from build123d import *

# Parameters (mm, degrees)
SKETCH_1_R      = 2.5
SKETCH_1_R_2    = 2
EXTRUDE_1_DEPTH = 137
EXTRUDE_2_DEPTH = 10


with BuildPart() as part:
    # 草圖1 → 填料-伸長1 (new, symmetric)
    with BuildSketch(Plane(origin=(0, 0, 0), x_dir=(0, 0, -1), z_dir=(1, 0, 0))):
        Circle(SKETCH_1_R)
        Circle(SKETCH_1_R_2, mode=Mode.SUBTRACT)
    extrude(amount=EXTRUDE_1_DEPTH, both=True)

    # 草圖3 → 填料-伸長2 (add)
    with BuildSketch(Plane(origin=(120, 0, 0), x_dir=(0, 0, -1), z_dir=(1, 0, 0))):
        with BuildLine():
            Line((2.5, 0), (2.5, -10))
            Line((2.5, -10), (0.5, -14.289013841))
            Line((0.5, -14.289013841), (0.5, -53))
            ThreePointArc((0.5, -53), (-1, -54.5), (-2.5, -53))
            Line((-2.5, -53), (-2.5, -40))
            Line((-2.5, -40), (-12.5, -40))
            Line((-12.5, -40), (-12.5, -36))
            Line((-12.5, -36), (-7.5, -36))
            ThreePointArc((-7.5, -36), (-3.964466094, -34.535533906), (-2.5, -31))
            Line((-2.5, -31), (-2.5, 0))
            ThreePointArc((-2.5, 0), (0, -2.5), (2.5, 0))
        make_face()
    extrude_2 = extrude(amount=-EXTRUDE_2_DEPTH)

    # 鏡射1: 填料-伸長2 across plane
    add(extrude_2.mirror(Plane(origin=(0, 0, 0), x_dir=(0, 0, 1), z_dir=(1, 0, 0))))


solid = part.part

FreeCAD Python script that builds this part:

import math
import FreeCAD as App
import Part
import Sketcher
from FreeCAD import Vector
Q = App.Units.Quantity

doc = App.newDocument("Part")
body = doc.addObject("PartDesign::Body", "Body")

sketch1 = body.newObject("Sketcher::SketchObject", "Sketch")
sketch1.AttachmentSupport = (doc.getObject("YZ_Plane"), [""])
sketch1.MapMode = "FlatFace"
sketch1.addGeometry([
    Part.Circle(Vector(0, 0, 0), Vector(0, 0, 1), 2.5),
    Part.Circle(Vector(0, 0, 0), Vector(0, 0, 1), 2),
], False)
sketch1.addConstraint([
    Sketcher.Constraint("Coincident", 0, 3, -1, 1),
    Sketcher.Constraint("Coincident", 1, 3, -1, 1),
    Sketcher.Constraint("Diameter", 0, Q("5 mm")),
    Sketcher.Constraint("Diameter", 1, Q("4 mm")),
])
pad1 = body.newObject("PartDesign::Pad", "Pad")
pad1.Profile = sketch1
pad1.Length = 274
pad1.Midplane = True

sketch2 = body.newObject("Sketcher::SketchObject", "Sketch001")
sketch2.AttachmentSupport = (doc.getObject("YZ_Plane"), [""])
sketch2.MapMode = "FlatFace"
sketch2.AttachmentOffset = App.Placement(Vector(0, 0, 120), App.Rotation())
sketch2.addGeometry([
    Part.LineSegment(Vector(-10, -2.5, 0), Vector(0, -2.5, 0)),
    Part.ArcOfCircle(Part.Circle(Vector(0, 0, 0), Vector(0, 0, 1), 2.5), math.radians(90), math.radians(270)),
    Part.LineSegment(Vector(0, 2.5, 0), Vector(-31, 2.5, 0)),
    Part.ArcOfCircle(Part.Circle(Vector(-31, 7.5, 0), Vector(0, 0, 1), 5), math.radians(180), math.radians(270)),
    Part.LineSegment(Vector(-36, 7.5, 0), Vector(-36, 12.5, 0)),
    Part.LineSegment(Vector(-36, 12.5, 0), Vector(-40, 12.5, 0)),
    Part.LineSegment(Vector(-40, 12.5, 0), Vector(-40, 2.5, 0)),
    Part.LineSegment(Vector(-40, 2.5, 0), Vector(-53, 2.5, 0)),
    Part.ArcOfCircle(Part.Circle(Vector(-53, 1, 0), Vector(0, 0, 1), 1.5), math.radians(90), math.radians(270)),
    Part.LineSegment(Vector(-53, -0.5, 0), Vector(-14.289014, -0.5, 0)),
    Part.LineSegment(Vector(-14.289014, -0.5, 0), Vector(-10, -2.5, 0)),
], False)
sketch2.addConstraint([
    Sketcher.Constraint("Tangent", 0, 2, 1, 2),
    Sketcher.Constraint("Tangent", 1, 1, 2, 1),
    Sketcher.Constraint("Tangent", 2, 2, 3, 2),
    Sketcher.Constraint("Tangent", 3, 1, 4, 1),
    Sketcher.Constraint("Coincident", 4, 2, 5, 1),
    Sketcher.Constraint("Coincident", 5, 2, 6, 1),
    Sketcher.Constraint("Coincident", 6, 2, 7, 1),
    Sketcher.Constraint("Tangent", 7, 2, 8, 1),
    Sketcher.Constraint("Tangent", 8, 2, 9, 1),
    Sketcher.Constraint("Coincident", 9, 2, 10, 1),
    Sketcher.Constraint("Coincident", 10, 2, 0, 1),
    Sketcher.Constraint("Horizontal", 0),
    Sketcher.Constraint("Horizontal", 2),
    Sketcher.Constraint("Vertical", 4),
    Sketcher.Constraint("Horizontal", 5),
    Sketcher.Constraint("Vertical", 6),
    Sketcher.Constraint("Horizontal", 7),
    Sketcher.Constraint("Horizontal", 9),
    Sketcher.Constraint("Coincident", 1, 3, -1, 1),
    Sketcher.Constraint("Horizontal", 2, 2, 6, 2),
    Sketcher.Constraint("Equal", 0, 6),
    Sketcher.Constraint("Radius", 3, Q("5 mm")),
    Sketcher.Constraint("Radius", 1, Q("2.5 mm")),
    Sketcher.Constraint("Radius", 8, Q("1.5 mm")),
    Sketcher.Constraint("DistanceX", 0, 1, 0, 2, Q("10 mm")),
    Sketcher.Constraint("DistanceX", 2, 2, 2, 1, Q("31 mm")),
    Sketcher.Constraint("DistanceX", 5, 2, 5, 1, Q("4 mm")),
    Sketcher.Constraint("DistanceX", 7, 2, 7, 1, Q("13 mm")),
    Sketcher.Constraint("Angle", 10, Q("-25 deg")),
])
pad2 = body.newObject("PartDesign::Pad", "Pad001")
pad2.Profile = sketch2
pad2.Length = 10
pad2.Reversed = True
doc.recompute()

mirrored = body.newObject("PartDesign::Mirrored", "Mirrored")
mirrored.Originals = [pad2]
mirrored.MirrorPlane = (doc.getObject("YZ_Plane"), [""])
body.Tip = mirrored

doc.recompute()
